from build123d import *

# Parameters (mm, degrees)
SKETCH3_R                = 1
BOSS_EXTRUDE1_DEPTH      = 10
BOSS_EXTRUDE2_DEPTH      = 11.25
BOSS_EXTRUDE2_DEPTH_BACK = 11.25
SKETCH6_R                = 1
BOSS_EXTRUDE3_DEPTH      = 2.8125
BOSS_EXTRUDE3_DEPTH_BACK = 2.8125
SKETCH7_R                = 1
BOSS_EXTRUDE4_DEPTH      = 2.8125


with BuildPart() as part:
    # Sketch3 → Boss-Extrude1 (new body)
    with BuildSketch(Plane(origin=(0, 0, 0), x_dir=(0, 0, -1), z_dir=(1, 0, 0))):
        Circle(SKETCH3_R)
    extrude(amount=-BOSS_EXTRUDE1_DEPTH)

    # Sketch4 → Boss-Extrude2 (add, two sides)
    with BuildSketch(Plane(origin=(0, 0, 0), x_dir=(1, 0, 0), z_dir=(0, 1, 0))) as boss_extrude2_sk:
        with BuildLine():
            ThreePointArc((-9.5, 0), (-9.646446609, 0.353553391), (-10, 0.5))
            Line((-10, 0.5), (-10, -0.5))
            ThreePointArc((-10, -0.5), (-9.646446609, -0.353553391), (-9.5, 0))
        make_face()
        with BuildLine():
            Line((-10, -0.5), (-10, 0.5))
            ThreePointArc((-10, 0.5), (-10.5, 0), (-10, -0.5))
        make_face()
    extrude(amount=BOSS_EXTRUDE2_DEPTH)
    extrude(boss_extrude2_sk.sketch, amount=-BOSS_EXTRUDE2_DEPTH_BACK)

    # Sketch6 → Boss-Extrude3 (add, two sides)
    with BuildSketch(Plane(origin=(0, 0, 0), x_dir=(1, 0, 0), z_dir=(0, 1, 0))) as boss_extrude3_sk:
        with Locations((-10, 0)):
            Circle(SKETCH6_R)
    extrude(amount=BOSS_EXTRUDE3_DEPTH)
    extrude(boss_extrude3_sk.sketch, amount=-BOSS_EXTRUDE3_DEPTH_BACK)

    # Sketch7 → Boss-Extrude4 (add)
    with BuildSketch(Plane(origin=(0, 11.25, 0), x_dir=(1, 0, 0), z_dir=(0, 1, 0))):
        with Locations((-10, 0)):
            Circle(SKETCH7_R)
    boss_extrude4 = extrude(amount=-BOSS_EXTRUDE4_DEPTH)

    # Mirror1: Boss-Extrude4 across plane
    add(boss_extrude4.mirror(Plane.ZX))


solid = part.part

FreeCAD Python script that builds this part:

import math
import FreeCAD as App
import Part
import Sketcher

V = App.Vector
Q = App.Units.Quantity

doc = App.newDocument("Part")
params = doc.addObject("Spreadsheet::Sheet", "Params")
for row, (alias, value) in enumerate([
    ("sketch1_diameter", "2 mm"),
    ("pad1_length", "10 mm"),
    ("sketch2_radius", "0.5 mm"),
    ("pad2_length", "11.25 mm"),
    ("pad2_length2", "11.25 mm"),
    ("sketch3_diameter", "2 mm"),
    ("pad3_length", "2.8125 mm"),
    ("pad3_length2", "2.8125 mm"),
    ("sketch4_diameter", "2 mm"),
    ("pad4_length", "2.8125 mm"),
], start=1):
    params.set(f"A{row}", alias)
    params.set(f"B{row}", "=" + value)
    params.setAlias(f"B{row}", alias)

body = doc.addObject("PartDesign::Body", "Body")

sketch1 = doc.addObject("Sketcher::SketchObject", "Sketch")
body.addObject(sketch1)
sketch1.AttachmentSupport = (doc.YZ_Plane, [""])
sketch1.MapMode = "FlatFace"
sketch1.addGeometry(Part.Circle(V(0, 0, 0), V(0, 0, 1), 1), False)
sketch1.addConstraint([
    Sketcher.Constraint("Coincident", 0, 3, -1, 1),
    Sketcher.Constraint("Diameter", 0, Q("2 mm")),
])
sketch1.setExpression("Constraints[1]", "Params.sketch1_diameter")
pad1 = doc.addObject("PartDesign::Pad", "Pad")
body.addObject(pad1)
pad1.Profile = sketch1
pad1.setExpression("Length", "Params.pad1_length")
pad1.Reversed = True

sketch2 = doc.addObject("Sketcher::SketchObject", "Sketch001")
body.addObject(sketch2)
sketch2.AttachmentSupport = (doc.XZ_Plane, [""])
sketch2.MapMode = "FlatFace"
sketch2.addGeometry([
    Part.ArcOfCircle(Part.Circle(V(-10, 0, 0), V(0, 0, 1), 0.5), math.radians(-90), math.radians(0)),
    Part.ArcOfCircle(Part.Circle(V(-10, 0, 0), V(0, 0, 1), 0.5), math.radians(90), math.radians(270)),
    Part.ArcOfCircle(Part.Circle(V(-10, 0, 0), V(0, 0, 1), 0.5), math.radians(0), math.radians(90)),
], False)
sketch2.addConstraint([
    Sketcher.Constraint("Tangent", 0, 1, 1, 2),
    Sketcher.Constraint("Tangent", 1, 1, 2, 2),
    Sketcher.Constraint("Tangent", 2, 1, 0, 2),
    Sketcher.Constraint("Symmetric", 0, 1, 1, 1, -1),
    Sketcher.Constraint("PointOnObject", 2, 1, -1),
    Sketcher.Constraint("Vertical", 2, 3, 0, 1),
    Sketcher.Constraint("Radius", 0, Q("0.5 mm")),
    Sketcher.Constraint("DistanceX", 0, 3, -1, 1, Q("10 mm")),
])
sketch2.setExpression("Constraints[6]", "Params.sketch2_radius")
pad2 = doc.addObject("PartDesign::Pad", "Pad001")
body.addObject(pad2)
pad2.Profile = sketch2
pad2.Type = "TwoLengths"
pad2.setExpression("Length", "Params.pad2_length")
pad2.setExpression("Length2", "Params.pad2_length2")
pad2.Reversed = True

sketch3 = doc.addObject("Sketcher::SketchObject", "Sketch002")
body.addObject(sketch3)
sketch3.AttachmentSupport = (doc.XZ_Plane, [""])
sketch3.MapMode = "FlatFace"
sketch3.addGeometry(Part.Circle(V(-10, 0, 0), V(0, 0, 1), 1), False)
sketch3.addConstraint([
    Sketcher.Constraint("PointOnObject", 0, 3, -1),
    Sketcher.Constraint("Diameter", 0, Q("2 mm")),
    Sketcher.Constraint("DistanceX", 0, 3, -1, 1, Q("10 mm")),
])
sketch3.setExpression("Constraints[1]", "Params.sketch3_diameter")
pad3 = doc.addObject("PartDesign::Pad", "Pad002")
body.addObject(pad3)
pad3.Profile = sketch3
pad3.Type = "TwoLengths"
pad3.setExpression("Length", "Params.pad3_length")
pad3.setExpression("Length2", "Params.pad3_length2")
pad3.Reversed = True

sketch4 = doc.addObject("Sketcher::SketchObject", "Sketch003")
body.addObject(sketch4)
sketch4.AttachmentSupport = (doc.XZ_Plane, [""])
sketch4.MapMode = "FlatFace"
sketch4.AttachmentOffset = App.Placement(V(0, 0, -11.25), App.Rotation())
sketch4.addGeometry(Part.Circle(V(-10, 0, 0), V(0, 0, 1), 1), False)
sketch4.addConstraint([
    Sketcher.Constraint("PointOnObject", 0, 3, -1),
    Sketcher.Constraint("Diameter", 0, Q("2 mm")),
    Sketcher.Constraint("DistanceX", 0, 3, -1, 1, Q("10 mm")),
])
sketch4.setExpression("Constraints[1]", "Params.sketch4_diameter")
pad4 = doc.addObject("PartDesign::Pad", "Pad003")
body.addObject(pad4)
pad4.Profile = sketch4
pad4.setExpression("Length", "Params.pad4_length")
doc.recompute()

mirrored = doc.addObject("PartDesign::Mirrored", "Mirrored")
body.addObject(mirrored)
mirrored.Originals = [pad4]
mirrored.MirrorPlane = (doc.XZ_Plane, [""])
body.Tip = mirrored

doc.recompute()
